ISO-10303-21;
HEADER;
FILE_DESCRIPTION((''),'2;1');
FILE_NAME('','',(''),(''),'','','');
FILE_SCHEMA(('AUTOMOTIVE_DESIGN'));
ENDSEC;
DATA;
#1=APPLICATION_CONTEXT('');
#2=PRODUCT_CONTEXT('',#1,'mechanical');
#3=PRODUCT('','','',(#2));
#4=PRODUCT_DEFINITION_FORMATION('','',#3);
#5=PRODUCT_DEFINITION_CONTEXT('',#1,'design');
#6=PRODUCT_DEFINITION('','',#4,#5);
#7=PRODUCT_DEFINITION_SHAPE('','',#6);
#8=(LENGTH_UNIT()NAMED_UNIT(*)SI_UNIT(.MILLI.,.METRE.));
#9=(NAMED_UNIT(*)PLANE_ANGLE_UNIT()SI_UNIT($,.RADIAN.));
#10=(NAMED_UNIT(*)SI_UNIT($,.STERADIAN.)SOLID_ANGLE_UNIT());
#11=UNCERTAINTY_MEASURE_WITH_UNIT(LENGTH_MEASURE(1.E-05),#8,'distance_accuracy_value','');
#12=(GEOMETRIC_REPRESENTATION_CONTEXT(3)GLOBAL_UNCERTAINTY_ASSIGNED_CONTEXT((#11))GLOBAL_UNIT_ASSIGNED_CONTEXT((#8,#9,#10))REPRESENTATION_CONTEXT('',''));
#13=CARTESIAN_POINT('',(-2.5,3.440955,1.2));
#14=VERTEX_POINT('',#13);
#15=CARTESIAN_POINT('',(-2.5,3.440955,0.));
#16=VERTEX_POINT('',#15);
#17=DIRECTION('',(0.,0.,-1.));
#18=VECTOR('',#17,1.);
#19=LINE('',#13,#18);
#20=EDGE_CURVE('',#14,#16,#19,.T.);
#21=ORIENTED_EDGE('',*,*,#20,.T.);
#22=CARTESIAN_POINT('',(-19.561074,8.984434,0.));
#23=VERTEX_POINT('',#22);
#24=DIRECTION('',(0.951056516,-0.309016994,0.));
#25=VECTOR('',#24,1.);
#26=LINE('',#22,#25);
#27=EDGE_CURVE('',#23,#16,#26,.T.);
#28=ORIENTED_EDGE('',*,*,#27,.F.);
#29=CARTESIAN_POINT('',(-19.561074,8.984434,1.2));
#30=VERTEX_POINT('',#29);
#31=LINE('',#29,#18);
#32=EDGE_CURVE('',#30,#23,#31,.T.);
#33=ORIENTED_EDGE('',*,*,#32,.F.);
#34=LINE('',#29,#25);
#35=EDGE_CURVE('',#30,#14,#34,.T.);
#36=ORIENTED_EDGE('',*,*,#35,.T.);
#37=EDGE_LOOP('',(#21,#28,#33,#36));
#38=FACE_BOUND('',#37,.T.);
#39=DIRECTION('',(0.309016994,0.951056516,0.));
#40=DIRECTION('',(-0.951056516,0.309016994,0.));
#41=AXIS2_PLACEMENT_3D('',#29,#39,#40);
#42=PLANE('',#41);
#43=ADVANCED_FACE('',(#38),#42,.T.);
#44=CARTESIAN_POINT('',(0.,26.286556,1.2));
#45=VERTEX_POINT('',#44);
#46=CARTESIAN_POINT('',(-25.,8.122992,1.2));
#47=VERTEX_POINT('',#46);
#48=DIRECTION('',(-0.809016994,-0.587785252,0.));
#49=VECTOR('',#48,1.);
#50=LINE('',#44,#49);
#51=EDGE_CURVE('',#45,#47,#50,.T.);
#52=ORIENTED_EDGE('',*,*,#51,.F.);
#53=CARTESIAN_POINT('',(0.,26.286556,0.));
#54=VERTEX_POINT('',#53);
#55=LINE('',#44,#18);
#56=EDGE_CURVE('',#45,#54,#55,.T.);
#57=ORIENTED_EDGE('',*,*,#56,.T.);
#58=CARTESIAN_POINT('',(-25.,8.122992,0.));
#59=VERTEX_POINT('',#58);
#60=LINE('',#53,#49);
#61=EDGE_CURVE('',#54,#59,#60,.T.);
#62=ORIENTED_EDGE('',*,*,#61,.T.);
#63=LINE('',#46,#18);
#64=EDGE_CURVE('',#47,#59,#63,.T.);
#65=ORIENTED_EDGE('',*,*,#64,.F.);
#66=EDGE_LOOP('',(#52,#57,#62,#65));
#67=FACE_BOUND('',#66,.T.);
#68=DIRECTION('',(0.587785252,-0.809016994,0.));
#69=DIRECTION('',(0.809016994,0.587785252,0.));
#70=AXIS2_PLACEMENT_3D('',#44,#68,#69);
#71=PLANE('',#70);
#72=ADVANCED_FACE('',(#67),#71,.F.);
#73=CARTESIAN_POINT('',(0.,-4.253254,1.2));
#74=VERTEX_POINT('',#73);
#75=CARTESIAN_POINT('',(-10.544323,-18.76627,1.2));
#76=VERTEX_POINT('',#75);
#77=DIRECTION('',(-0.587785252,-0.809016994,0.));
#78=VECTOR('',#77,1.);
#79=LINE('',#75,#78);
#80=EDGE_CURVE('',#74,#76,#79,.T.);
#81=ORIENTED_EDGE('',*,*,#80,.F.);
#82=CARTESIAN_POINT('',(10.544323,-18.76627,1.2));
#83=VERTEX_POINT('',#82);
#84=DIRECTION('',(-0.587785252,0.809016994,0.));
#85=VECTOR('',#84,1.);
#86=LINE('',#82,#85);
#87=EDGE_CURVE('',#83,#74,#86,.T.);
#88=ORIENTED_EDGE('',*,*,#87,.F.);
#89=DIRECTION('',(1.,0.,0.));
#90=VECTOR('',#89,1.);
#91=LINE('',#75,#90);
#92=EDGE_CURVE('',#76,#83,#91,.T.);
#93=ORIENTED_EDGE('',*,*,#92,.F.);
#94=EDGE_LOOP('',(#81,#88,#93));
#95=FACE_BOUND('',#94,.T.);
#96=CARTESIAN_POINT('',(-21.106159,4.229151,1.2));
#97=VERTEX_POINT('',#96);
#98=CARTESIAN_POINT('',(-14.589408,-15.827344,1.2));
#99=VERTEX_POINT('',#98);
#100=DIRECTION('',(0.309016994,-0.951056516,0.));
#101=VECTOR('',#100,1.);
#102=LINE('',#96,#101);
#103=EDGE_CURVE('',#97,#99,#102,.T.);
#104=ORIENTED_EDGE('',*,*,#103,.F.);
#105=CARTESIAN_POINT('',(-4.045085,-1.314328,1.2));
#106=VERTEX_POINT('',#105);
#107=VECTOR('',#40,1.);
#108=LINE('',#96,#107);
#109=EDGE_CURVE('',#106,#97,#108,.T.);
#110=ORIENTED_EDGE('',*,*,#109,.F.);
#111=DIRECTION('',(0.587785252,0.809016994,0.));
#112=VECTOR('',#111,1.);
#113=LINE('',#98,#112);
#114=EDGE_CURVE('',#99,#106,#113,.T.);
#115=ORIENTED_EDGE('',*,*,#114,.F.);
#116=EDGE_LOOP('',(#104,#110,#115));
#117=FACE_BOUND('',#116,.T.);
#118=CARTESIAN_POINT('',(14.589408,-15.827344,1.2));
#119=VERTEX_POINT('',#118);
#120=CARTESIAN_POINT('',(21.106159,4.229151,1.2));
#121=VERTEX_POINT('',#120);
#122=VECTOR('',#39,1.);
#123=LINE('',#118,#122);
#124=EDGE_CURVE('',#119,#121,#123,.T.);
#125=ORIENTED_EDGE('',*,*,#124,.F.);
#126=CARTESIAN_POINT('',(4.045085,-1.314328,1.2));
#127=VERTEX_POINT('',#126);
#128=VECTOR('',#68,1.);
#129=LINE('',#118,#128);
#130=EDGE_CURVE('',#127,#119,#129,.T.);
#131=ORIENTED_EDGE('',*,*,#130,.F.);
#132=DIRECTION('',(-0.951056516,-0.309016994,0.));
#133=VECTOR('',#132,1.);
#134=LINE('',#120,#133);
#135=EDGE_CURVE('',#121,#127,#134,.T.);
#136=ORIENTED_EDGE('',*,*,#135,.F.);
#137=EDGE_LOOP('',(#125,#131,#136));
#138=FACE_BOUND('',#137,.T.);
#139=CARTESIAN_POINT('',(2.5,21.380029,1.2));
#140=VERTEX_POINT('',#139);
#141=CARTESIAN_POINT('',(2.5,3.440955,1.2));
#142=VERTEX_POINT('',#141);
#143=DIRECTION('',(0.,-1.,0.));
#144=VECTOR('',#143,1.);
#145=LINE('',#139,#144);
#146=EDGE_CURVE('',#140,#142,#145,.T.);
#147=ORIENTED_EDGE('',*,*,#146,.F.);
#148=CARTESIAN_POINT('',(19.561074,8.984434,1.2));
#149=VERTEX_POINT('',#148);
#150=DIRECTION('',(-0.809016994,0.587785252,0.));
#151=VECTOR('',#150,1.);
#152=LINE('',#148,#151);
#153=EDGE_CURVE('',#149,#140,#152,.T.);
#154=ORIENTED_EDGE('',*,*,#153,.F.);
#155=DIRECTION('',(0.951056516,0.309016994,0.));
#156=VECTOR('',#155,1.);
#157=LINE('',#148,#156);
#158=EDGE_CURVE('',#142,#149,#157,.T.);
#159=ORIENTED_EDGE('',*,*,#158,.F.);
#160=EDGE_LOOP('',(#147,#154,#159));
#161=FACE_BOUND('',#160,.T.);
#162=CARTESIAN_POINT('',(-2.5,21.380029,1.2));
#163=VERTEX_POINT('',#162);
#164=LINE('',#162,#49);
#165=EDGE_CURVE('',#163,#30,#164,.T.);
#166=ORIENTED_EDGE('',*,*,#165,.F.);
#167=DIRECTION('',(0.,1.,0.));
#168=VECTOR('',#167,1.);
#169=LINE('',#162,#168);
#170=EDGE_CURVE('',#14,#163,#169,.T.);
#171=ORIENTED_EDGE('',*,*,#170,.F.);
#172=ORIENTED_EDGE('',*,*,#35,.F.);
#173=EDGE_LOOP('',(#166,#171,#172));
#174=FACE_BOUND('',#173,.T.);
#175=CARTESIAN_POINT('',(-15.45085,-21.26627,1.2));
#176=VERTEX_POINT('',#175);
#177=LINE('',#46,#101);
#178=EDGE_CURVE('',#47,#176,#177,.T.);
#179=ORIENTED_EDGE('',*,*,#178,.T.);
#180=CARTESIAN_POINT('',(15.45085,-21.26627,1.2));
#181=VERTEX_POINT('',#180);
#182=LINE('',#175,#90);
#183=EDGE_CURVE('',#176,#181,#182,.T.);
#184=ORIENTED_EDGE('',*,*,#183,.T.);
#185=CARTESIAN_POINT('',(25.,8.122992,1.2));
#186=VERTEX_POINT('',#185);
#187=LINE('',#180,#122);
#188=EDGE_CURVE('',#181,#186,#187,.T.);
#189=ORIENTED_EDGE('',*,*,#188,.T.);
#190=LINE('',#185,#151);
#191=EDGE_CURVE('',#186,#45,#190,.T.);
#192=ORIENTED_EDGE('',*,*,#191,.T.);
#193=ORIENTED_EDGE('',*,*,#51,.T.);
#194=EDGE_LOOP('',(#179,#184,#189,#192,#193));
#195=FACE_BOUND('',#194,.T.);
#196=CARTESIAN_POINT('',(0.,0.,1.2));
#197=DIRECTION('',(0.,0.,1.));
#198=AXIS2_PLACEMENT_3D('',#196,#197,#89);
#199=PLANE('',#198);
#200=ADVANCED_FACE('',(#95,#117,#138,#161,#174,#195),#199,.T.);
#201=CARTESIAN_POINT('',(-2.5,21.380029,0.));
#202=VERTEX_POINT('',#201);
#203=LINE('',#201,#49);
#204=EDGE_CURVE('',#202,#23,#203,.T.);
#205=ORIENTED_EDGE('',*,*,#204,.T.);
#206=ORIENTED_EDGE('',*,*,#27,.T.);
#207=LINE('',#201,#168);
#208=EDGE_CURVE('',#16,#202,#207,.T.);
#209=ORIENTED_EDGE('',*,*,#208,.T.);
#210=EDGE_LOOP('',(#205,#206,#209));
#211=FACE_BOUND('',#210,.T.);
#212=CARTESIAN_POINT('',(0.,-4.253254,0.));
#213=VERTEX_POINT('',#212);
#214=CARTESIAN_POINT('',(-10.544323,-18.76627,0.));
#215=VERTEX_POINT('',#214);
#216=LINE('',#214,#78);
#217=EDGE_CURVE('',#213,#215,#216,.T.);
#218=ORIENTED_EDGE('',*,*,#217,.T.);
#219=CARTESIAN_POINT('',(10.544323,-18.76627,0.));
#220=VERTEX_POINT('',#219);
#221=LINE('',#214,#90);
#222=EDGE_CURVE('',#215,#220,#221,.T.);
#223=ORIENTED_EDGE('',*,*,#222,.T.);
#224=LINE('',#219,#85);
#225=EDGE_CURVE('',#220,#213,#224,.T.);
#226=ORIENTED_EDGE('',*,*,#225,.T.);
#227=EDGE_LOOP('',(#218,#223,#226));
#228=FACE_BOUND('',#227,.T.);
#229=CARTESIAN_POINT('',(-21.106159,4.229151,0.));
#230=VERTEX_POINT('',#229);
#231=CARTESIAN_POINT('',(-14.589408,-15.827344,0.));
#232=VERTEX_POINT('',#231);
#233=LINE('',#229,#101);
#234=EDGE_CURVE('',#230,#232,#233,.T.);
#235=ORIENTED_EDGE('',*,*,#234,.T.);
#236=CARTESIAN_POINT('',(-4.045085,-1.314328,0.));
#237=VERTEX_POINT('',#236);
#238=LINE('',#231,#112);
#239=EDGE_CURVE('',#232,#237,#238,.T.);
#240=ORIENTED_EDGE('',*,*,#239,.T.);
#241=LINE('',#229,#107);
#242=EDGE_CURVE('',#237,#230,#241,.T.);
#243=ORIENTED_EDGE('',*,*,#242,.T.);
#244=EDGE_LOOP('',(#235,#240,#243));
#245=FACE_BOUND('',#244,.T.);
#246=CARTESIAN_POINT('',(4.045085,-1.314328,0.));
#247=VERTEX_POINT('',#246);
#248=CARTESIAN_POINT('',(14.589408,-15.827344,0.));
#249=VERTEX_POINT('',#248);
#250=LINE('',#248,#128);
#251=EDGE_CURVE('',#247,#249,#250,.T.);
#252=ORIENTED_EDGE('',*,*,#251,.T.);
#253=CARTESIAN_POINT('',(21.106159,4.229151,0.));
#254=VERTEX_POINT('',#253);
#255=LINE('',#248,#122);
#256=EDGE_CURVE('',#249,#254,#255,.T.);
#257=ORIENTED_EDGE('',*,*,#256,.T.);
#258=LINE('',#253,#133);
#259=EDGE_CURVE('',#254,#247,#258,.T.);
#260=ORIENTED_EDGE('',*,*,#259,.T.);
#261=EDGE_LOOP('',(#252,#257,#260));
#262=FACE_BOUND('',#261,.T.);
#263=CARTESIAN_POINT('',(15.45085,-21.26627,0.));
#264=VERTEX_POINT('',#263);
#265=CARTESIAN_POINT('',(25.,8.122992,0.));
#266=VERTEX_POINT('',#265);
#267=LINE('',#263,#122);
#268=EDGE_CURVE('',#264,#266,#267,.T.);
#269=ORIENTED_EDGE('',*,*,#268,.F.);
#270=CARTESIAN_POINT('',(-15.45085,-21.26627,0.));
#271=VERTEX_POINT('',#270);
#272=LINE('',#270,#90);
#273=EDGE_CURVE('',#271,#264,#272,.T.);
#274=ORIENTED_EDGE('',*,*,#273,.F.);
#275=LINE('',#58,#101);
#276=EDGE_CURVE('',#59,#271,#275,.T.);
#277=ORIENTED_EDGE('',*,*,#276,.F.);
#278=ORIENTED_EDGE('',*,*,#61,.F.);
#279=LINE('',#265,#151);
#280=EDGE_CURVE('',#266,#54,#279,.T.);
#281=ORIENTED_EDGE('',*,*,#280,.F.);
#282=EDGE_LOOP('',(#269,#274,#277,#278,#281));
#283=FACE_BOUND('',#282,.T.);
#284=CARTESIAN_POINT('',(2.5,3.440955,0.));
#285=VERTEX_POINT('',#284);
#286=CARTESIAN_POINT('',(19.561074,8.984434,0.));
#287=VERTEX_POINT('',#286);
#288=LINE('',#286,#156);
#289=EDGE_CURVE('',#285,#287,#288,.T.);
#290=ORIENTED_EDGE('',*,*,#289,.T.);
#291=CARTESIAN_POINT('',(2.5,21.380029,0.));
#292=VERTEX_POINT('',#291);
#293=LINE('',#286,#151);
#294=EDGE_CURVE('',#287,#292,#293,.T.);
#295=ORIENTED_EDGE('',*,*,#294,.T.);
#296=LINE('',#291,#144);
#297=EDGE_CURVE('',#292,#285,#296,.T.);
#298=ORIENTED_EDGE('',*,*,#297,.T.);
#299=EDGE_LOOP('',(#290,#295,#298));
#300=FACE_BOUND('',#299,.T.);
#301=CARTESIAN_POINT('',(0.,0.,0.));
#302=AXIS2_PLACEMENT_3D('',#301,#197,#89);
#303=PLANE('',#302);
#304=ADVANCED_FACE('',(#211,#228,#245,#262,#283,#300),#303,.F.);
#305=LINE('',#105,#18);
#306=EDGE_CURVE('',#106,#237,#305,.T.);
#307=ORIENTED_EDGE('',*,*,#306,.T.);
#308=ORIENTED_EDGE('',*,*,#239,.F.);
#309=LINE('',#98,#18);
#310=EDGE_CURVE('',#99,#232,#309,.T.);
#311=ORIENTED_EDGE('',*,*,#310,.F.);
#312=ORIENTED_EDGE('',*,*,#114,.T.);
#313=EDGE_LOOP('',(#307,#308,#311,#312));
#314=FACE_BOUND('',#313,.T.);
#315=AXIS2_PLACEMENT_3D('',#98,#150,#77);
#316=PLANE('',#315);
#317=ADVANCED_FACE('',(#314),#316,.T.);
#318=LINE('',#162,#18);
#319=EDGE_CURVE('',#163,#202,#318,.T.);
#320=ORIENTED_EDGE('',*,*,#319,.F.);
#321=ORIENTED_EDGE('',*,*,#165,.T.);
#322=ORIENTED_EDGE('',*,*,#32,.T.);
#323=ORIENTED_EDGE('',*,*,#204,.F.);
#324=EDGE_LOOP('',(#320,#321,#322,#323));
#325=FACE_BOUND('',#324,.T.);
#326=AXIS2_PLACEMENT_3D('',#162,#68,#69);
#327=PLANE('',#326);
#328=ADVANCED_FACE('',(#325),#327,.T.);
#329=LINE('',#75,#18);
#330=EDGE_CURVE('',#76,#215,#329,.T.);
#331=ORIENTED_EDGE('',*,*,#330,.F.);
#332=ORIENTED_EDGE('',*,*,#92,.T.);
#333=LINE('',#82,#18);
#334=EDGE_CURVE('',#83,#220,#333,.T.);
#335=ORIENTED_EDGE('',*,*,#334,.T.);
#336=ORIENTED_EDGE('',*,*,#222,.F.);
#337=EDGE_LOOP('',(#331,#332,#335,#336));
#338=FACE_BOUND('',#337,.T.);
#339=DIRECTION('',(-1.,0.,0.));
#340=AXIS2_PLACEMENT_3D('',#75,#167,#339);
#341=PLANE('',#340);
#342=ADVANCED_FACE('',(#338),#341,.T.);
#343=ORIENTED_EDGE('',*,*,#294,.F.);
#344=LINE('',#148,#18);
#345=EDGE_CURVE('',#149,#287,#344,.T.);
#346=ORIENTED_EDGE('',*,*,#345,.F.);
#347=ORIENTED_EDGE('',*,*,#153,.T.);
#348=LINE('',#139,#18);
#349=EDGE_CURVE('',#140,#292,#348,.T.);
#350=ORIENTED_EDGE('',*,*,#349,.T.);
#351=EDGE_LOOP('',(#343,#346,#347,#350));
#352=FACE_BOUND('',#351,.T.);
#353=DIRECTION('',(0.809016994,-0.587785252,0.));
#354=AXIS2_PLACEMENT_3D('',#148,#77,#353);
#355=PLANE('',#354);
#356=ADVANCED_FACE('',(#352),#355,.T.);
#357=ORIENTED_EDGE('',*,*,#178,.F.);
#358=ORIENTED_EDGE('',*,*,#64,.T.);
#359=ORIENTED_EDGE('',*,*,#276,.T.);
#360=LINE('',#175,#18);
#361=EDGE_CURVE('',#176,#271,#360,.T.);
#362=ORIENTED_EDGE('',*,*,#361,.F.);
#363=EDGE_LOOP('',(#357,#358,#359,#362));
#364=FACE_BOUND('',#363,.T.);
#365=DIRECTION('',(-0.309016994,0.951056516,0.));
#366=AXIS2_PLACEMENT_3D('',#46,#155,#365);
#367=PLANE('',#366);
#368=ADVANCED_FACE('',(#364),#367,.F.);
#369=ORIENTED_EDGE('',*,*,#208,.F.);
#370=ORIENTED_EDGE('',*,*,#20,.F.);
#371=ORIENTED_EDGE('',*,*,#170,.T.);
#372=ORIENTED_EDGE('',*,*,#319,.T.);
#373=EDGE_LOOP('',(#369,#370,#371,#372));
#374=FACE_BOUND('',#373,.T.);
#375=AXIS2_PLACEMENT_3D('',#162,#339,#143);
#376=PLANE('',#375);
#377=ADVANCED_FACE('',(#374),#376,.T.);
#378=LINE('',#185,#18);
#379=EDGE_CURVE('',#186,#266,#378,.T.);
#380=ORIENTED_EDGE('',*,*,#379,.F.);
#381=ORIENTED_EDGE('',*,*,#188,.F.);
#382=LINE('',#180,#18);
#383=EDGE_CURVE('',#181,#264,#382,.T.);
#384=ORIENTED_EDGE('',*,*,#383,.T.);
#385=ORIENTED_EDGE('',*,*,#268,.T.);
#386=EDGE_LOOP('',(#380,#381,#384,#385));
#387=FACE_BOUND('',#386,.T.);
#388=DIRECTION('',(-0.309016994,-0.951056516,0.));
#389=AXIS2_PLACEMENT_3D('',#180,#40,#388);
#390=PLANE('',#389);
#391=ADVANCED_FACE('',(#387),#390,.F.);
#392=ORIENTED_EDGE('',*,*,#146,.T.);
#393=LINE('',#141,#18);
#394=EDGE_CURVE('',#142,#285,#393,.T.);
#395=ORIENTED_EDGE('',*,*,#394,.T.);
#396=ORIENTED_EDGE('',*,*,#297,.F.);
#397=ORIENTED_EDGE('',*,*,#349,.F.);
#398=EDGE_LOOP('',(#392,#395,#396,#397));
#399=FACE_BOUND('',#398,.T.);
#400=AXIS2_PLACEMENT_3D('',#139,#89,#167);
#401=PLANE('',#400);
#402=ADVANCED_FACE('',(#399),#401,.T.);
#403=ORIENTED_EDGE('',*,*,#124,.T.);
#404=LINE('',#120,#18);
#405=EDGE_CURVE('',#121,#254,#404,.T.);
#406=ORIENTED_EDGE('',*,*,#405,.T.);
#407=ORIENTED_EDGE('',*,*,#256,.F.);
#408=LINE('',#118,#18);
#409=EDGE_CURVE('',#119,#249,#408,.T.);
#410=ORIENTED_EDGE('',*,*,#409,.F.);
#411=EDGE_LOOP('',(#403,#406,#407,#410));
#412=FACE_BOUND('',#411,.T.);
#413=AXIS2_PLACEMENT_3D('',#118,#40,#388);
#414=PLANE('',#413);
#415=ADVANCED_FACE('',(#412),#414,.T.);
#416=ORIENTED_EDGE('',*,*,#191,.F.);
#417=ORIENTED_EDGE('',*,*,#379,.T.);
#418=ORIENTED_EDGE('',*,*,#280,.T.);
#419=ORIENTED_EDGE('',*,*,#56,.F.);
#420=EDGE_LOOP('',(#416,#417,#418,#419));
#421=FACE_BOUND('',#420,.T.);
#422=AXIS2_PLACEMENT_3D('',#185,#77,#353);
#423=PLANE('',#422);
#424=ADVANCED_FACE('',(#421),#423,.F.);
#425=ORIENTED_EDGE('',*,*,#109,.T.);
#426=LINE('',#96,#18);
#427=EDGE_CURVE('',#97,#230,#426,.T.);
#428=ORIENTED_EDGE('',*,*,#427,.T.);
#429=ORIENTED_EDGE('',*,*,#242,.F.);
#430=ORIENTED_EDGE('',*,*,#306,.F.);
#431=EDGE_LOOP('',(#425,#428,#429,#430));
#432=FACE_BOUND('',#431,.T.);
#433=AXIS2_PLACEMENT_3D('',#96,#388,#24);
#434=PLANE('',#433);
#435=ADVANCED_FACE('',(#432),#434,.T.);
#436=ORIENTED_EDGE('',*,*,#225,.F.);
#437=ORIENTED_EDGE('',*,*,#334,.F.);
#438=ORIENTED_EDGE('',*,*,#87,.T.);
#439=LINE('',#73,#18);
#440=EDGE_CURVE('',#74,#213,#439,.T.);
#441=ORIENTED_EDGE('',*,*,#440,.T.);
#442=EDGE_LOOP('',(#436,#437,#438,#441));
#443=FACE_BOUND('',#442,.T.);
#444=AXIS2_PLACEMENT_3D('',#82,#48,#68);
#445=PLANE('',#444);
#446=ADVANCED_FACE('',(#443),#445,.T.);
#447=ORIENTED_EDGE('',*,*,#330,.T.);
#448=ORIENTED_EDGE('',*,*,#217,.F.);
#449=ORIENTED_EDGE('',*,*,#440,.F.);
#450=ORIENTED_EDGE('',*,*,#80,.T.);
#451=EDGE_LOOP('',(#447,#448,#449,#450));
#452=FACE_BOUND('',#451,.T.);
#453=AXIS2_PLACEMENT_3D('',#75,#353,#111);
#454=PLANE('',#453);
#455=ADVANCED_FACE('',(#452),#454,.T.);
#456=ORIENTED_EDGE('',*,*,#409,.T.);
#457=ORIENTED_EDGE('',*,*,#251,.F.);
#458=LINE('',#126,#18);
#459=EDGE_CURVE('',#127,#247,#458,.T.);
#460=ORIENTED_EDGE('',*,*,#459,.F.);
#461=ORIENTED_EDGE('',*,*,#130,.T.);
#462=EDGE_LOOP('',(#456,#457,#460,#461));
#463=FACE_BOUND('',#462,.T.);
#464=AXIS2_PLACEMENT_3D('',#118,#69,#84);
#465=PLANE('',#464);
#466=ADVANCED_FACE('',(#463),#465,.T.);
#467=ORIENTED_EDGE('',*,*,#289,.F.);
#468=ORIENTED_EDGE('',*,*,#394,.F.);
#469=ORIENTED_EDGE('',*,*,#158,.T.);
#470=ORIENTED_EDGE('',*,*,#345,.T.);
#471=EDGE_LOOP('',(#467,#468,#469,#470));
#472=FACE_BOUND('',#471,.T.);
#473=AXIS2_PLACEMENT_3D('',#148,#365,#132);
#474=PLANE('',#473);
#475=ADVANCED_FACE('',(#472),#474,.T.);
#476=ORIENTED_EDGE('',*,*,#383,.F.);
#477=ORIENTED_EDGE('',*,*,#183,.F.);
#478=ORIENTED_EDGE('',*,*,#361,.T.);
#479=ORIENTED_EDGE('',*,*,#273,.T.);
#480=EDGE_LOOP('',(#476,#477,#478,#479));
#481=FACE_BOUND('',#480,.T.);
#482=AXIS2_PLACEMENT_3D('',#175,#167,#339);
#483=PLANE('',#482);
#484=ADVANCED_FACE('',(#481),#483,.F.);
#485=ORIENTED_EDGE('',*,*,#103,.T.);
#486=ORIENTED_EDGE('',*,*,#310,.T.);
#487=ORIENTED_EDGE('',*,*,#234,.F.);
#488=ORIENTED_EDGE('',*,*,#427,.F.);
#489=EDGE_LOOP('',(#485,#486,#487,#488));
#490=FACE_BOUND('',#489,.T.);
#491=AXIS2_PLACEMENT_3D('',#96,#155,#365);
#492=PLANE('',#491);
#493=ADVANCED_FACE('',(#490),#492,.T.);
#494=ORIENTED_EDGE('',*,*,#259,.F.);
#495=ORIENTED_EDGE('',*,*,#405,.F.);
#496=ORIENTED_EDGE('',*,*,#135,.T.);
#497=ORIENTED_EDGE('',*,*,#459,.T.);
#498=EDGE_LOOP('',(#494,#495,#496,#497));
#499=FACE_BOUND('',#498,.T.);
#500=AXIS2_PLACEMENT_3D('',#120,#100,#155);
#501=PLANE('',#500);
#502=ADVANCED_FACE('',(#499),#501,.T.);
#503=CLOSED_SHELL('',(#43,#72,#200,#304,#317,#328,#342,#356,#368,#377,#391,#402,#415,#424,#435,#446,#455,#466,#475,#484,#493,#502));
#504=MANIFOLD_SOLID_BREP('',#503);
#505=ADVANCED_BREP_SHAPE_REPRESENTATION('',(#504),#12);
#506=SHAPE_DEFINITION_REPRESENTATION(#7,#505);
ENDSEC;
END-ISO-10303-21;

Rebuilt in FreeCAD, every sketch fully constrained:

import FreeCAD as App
import Part
import Sketcher


def add_polygon(sketch, points):
    """Adds a closed chain of lines whose ends are joined by coincident constraints."""
    first, n = sketch.GeometryCount, len(points)
    for a, b in zip(points, points[1:] + points[:1]):
        sketch.addGeometry(Part.LineSegment(App.Vector(*a, 0), App.Vector(*b, 0)), False)
    for i in range(n):
        sketch.addConstraint(Sketcher.Constraint("Coincident", first + i, 2, first + (i + 1) % n, 1))

doc = App.newDocument("Part")
params = doc.addObject("Spreadsheet::Sheet", "Params")
for row, (alias, value) in enumerate([
    ("pad1_length", "1.2 mm"),
], start=1):
    params.set(f"A{row}", alias)
    params.set(f"B{row}", "=" + value)
    params.setAlias(f"B{row}", alias)

body = doc.addObject("PartDesign::Body", "Body")

# Sketch on XY plane
sketch1 = body.newObject("Sketcher::SketchObject", "Sketch")
sketch1.AttachmentSupport = (doc.getObject("XY_Plane"), [""])
sketch1.MapMode = "FlatFace"
add_polygon(sketch1, [(0, 26), (-25, 8), (-15, -21), (15, -21), (25, 8)])  # lines 0-4
add_polygon(sketch1, [(-15, -16), (-21, 4), (-4, -1)])  # lines 5-7
add_polygon(sketch1, [(11, -19), (-11, -19), (0, -4)])  # lines 8-10
add_polygon(sketch1, [(21, 4), (15, -16), (4, -1)])  # lines 11-13
add_polygon(sketch1, [(-2, 3), (-20, 9), (-2, 21)])  # lines 14-16
add_polygon(sketch1, [(2, 3), (2, 21), (20, 9)])  # lines 17-19
sketch1.addConstraint(Sketcher.Constraint("Horizontal", 2))
sketch1.addConstraint(Sketcher.Constraint("Horizontal", 8))
sketch1.addConstraint(Sketcher.Constraint("Vertical", 16))
sketch1.addConstraint(Sketcher.Constraint("Vertical", 17))
sketch1.addConstraint(Sketcher.Constraint("Symmetric", 0, 2, 3, 2, -2))
sketch1.addConstraint(Sketcher.Constraint("Symmetric", 7, 2, 11, 2, -2))
sketch1.addConstraint(Sketcher.Constraint("Symmetric", 6, 2, 12, 2, -2))
sketch1.addConstraint(Sketcher.Constraint("Symmetric", 5, 2, 13, 2, -2))
sketch1.addConstraint(Sketcher.Constraint("Symmetric", 15, 2, 17, 2, -2))
sketch1.addConstraint(Sketcher.Constraint("Symmetric", 14, 2, 18, 2, -2))
sketch1.addConstraint(Sketcher.Constraint("PointOnObject", 4, 2, -2))
sketch1.addConstraint(Sketcher.Constraint("PointOnObject", 9, 2, -2))
sketch1.addConstraint(Sketcher.Constraint("Parallel", 1, 5))
sketch1.addConstraint(Sketcher.Constraint("Perpendicular", 3, 6))
sketch1.addConstraint(Sketcher.Constraint("Perpendicular", 4, 7))
sketch1.addConstraint(Sketcher.Constraint("Parallel", 7, 9))
sketch1.addConstraint(Sketcher.Constraint("Perpendicular", 0, 10))
sketch1.addConstraint(Sketcher.Constraint("Perpendicular", 6, 11))
sketch1.addConstraint(Sketcher.Constraint("Perpendicular", 11, 14))
sketch1.addConstraint(Sketcher.Constraint("Perpendicular", 12, 15))
sketch1.addConstraint(Sketcher.Constraint("Parallel", 13, 19))
sketch1.addConstraint(Sketcher.Constraint("Equal", 0, 1))
sketch1.addConstraint(Sketcher.Constraint("Equal", 6, 7))
sketch1.addConstraint(Sketcher.Constraint("Equal", 7, 9))
sketch1.addConstraint(Sketcher.Constraint("Equal", 13, 14))
sketch1.addConstraint(Sketcher.Constraint("Equal", 11, 15))
sketch1.addConstraint(Sketcher.Constraint("DistanceX", 0, 2, -1, 1, 25.0))
sketch1.addConstraint(Sketcher.Constraint("DistanceX", 15, 2, 17, 2, 5.0))
sketch1.addConstraint(Sketcher.Constraint("DistanceY", 1, 2, 8, 2, 2.5))
sketch1.addConstraint(Sketcher.Constraint("DistanceX", 8, 2, 8, 1, 21.088647))
sketch1.addConstraint(Sketcher.Constraint("DistanceY", 1, 2, -1, 1, 21.26627))
sketch1.addConstraint(Sketcher.Constraint("DistanceX", 5, 2, -1, 1, 21.106159))
sketch1.addConstraint(Sketcher.Constraint("DistanceY", -1, 1, 5, 2, 4.229151))
sketch1.addConstraint(Sketcher.Constraint("DistanceY", -1, 1, 15, 2, 21.380029))
pad1 = body.newObject("PartDesign::Pad", "Pad")
pad1.Profile = sketch1
pad1.setExpression("Length", "Params.pad1_length")

doc.recompute()
